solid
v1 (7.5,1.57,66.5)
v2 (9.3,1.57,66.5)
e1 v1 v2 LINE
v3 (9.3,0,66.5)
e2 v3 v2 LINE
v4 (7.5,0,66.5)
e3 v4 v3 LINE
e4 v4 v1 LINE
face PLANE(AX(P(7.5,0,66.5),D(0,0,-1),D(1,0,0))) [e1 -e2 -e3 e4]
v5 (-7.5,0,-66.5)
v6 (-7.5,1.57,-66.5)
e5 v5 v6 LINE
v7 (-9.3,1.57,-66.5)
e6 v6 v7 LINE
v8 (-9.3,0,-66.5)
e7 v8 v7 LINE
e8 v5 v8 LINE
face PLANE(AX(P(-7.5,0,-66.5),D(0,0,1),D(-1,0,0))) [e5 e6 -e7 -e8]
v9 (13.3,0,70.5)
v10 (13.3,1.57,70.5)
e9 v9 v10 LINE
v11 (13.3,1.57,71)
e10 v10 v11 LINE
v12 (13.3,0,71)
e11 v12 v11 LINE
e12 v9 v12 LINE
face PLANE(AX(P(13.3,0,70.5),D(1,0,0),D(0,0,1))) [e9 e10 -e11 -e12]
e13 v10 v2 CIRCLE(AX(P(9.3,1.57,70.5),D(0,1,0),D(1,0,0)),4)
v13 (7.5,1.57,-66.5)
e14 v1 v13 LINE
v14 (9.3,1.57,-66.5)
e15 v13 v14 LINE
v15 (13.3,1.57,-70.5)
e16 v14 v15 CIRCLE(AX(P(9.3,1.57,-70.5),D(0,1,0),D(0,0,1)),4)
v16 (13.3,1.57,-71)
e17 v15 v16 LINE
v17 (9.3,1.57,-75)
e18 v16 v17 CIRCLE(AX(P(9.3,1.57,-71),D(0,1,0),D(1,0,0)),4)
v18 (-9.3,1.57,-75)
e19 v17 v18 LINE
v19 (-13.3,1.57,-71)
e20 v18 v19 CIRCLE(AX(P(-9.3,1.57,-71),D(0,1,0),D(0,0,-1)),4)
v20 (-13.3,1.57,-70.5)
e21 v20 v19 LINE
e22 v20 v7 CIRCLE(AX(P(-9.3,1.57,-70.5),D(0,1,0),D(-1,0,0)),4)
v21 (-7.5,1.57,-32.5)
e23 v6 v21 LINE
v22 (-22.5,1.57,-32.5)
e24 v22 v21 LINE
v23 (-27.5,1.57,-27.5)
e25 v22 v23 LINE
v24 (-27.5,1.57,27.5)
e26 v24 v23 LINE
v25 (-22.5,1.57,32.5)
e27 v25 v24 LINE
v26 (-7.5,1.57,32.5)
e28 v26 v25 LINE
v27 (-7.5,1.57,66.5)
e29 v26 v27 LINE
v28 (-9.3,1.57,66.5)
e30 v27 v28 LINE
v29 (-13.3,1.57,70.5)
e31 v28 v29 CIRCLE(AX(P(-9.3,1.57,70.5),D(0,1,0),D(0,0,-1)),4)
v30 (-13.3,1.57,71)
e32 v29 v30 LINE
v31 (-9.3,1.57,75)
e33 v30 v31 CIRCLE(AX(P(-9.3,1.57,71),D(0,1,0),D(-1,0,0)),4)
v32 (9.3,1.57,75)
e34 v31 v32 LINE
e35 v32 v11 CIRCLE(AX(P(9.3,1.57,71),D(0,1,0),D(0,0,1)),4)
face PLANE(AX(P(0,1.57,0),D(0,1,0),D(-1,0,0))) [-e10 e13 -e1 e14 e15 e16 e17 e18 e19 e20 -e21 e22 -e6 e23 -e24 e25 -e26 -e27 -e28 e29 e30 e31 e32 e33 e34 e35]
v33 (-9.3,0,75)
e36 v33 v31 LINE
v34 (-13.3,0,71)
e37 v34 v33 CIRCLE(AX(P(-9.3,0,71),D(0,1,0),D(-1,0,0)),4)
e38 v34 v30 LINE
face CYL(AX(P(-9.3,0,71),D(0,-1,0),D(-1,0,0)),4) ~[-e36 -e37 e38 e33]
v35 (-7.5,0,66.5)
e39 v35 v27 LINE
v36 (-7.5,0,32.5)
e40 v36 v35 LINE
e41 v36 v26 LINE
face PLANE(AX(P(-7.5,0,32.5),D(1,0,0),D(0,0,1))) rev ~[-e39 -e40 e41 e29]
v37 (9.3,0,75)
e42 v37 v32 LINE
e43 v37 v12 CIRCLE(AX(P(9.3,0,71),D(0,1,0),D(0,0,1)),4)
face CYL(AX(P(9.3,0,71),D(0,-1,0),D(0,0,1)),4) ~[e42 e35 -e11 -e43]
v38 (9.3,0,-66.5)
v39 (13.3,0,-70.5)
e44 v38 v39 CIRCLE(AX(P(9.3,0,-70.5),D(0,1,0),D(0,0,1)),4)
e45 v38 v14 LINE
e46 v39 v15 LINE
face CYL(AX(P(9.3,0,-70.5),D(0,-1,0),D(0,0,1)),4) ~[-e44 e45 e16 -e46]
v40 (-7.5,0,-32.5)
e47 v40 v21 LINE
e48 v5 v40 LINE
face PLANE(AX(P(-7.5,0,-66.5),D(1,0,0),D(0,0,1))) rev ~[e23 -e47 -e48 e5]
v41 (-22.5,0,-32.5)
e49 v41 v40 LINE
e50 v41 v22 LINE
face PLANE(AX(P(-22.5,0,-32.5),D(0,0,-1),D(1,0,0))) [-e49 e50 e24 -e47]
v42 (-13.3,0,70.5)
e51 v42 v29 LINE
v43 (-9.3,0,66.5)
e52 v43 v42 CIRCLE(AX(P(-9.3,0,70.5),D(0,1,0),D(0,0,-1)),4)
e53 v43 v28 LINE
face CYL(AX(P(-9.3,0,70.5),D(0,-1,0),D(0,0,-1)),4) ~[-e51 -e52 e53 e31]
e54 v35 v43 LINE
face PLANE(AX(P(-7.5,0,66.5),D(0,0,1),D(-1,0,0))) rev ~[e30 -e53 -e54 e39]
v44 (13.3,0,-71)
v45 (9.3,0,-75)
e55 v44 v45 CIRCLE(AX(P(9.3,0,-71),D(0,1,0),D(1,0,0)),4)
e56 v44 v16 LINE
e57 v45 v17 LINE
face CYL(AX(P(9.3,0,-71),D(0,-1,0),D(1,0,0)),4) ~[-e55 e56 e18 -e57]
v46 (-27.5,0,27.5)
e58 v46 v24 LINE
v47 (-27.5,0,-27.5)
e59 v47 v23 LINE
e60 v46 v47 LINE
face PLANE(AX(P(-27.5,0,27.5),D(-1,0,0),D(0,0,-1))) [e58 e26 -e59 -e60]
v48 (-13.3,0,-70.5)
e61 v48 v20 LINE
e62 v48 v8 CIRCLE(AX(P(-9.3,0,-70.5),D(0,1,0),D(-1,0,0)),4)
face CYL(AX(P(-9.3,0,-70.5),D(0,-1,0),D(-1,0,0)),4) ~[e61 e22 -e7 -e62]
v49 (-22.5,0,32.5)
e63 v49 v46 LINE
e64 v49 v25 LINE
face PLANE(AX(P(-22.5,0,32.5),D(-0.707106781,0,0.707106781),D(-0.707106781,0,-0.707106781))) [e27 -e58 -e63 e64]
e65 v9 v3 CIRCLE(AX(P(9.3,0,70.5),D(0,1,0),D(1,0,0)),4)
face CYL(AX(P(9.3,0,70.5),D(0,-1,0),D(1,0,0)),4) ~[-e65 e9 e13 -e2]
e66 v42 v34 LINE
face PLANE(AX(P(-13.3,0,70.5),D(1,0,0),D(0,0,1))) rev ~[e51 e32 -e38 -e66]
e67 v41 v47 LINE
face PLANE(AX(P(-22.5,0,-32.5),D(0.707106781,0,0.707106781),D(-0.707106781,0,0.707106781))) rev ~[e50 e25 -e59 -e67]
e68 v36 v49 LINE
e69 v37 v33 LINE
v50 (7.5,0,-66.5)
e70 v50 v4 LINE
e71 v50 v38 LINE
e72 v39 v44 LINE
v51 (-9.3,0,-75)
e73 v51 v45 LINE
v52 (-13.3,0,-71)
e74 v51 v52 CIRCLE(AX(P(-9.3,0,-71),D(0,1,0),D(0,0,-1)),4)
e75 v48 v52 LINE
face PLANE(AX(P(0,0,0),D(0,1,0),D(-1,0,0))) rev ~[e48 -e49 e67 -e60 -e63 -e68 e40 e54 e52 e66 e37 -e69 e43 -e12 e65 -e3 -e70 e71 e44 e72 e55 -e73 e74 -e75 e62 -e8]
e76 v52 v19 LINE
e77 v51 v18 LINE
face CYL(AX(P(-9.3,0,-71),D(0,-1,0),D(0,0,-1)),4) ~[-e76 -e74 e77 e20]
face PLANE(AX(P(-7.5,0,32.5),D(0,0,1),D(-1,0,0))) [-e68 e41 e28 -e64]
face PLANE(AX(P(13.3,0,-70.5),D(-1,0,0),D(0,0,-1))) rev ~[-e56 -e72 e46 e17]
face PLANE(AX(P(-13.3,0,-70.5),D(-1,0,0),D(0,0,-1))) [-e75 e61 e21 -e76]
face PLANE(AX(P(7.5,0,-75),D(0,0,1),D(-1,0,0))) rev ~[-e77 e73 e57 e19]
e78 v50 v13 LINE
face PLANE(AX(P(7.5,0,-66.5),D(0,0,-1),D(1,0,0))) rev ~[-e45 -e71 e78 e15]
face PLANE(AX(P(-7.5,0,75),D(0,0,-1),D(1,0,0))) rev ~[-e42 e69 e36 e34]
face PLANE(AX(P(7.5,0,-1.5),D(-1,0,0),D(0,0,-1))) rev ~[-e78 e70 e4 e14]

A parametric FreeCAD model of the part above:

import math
import FreeCAD as App
import Part
import Sketcher

V = App.Vector
Q = App.Units.Quantity

doc = App.newDocument("Part")
params = doc.addObject("Spreadsheet::Sheet", "Params")
for row, (alias, value) in enumerate([
    ("sketch1_radius", "4 mm"),
    ("sketch1_width", "15 mm"),
    ("sketch1_width2", "1.8 mm"),
    ("sketch1_height", "0.5 mm"),
    ("sketch1_height2", "34 mm"),
    ("pad1_length", "1.57 mm"),
], start=1):
    params.set(f"A{row}", alias)
    params.set(f"B{row}", "=" + value)
    params.setAlias(f"B{row}", alias)

body = doc.addObject("PartDesign::Body", "Body")

sketch1 = doc.addObject("Sketcher::SketchObject", "Sketch")
body.addObject(sketch1)
sketch1.AttachmentSupport = (doc.XZ_Plane, [""])
sketch1.MapMode = "FlatFace"
sketch1.addGeometry([
    Part.LineSegment(V(-7.5, 32.5, 0), V(-7.5, 66.5, 0)),
    Part.LineSegment(V(-7.5, 66.5, 0), V(-9.3, 66.5, 0)),
    Part.ArcOfCircle(Part.Circle(V(-9.3, 70.5, 0), V(0, 0, 1), 4), math.radians(180), math.radians(270)),
    Part.LineSegment(V(-13.3, 70.5, 0), V(-13.3, 71, 0)),
    Part.ArcOfCircle(Part.Circle(V(-9.3, 71, 0), V(0, 0, 1), 4), math.radians(90), math.radians(180)),
    Part.LineSegment(V(-9.3, 75, 0), V(9.3, 75, 0)),
    Part.ArcOfCircle(Part.Circle(V(9.3, 71, 0), V(0, 0, 1), 4), math.radians(0), math.radians(90)),
    Part.LineSegment(V(13.3, 71, 0), V(13.3, 70.5, 0)),
    Part.ArcOfCircle(Part.Circle(V(9.3, 70.5, 0), V(0, 0, 1), 4), math.radians(-90), math.radians(0)),
    Part.LineSegment(V(9.3, 66.5, 0), V(7.5, 66.5, 0)),
    Part.LineSegment(V(7.5, 66.5, 0), V(7.5, -66.5, 0)),
    Part.LineSegment(V(7.5, -66.5, 0), V(9.3, -66.5, 0)),
    Part.ArcOfCircle(Part.Circle(V(9.3, -70.5, 0), V(0, 0, 1), 4), math.radians(0), math.radians(90)),
    Part.LineSegment(V(13.3, -70.5, 0), V(13.3, -71, 0)),
    Part.ArcOfCircle(Part.Circle(V(9.3, -71, 0), V(0, 0, 1), 4), math.radians(-90), math.radians(0)),
    Part.LineSegment(V(9.3, -75, 0), V(-9.3, -75, 0)),
    Part.ArcOfCircle(Part.Circle(V(-9.3, -71, 0), V(0, 0, 1), 4), math.radians(180), math.radians(270)),
    Part.LineSegment(V(-13.3, -71, 0), V(-13.3, -70.5, 0)),
    Part.ArcOfCircle(Part.Circle(V(-9.3, -70.5, 0), V(0, 0, 1), 4), math.radians(90), math.radians(180)),
    Part.LineSegment(V(-9.3, -66.5, 0), V(-7.5, -66.5, 0)),
    Part.LineSegment(V(-7.5, -66.5, 0), V(-7.5, -32.5, 0)),
    Part.LineSegment(V(-7.5, -32.5, 0), V(-22.5, -32.5, 0)),
    Part.LineSegment(V(-22.5, -32.5, 0), V(-27.5, -27.5, 0)),
    Part.LineSegment(V(-27.5, -27.5, 0), V(-27.5, 27.5, 0)),
    Part.LineSegment(V(-27.5, 27.5, 0), V(-22.5, 32.5, 0)),
    Part.LineSegment(V(-22.5, 32.5, 0), V(-7.5, 32.5, 0)),
], False)
sketch1.addConstraint([
    Sketcher.Constraint("Coincident", 0, 2, 1, 1),
    Sketcher.Constraint("Tangent", 1, 2, 2, 2),
    Sketcher.Constraint("Tangent", 2, 1, 3, 1),
    Sketcher.Constraint("Tangent", 3, 2, 4, 2),
    Sketcher.Constraint("Tangent", 4, 1, 5, 1),
    Sketcher.Constraint("Tangent", 5, 2, 6, 2),
    Sketcher.Constraint("Tangent", 6, 1, 7, 1),
    Sketcher.Constraint("Tangent", 7, 2, 8, 2),
    Sketcher.Constraint("Tangent", 8, 1, 9, 1),
    Sketcher.Constraint("Coincident", 9, 2, 10, 1),
    Sketcher.Constraint("Coincident", 10, 2, 11, 1),
    Sketcher.Constraint("Tangent", 11, 2, 12, 2),
    Sketcher.Constraint("Tangent", 12, 1, 13, 1),
    Sketcher.Constraint("Tangent", 13, 2, 14, 2),
    Sketcher.Constraint("Tangent", 14, 1, 15, 1),
    Sketcher.Constraint("Tangent", 15, 2, 16, 2),
    Sketcher.Constraint("Tangent", 16, 1, 17, 1),
    Sketcher.Constraint("Tangent", 17, 2, 18, 2),
    Sketcher.Constraint("Tangent", 18, 1, 19, 1),
    Sketcher.Constraint("Coincident", 19, 2, 20, 1),
    Sketcher.Constraint("Coincident", 20, 2, 21, 1),
    Sketcher.Constraint("Coincident", 21, 2, 22, 1),
    Sketcher.Constraint("Coincident", 22, 2, 23, 1),
    Sketcher.Constraint("Coincident", 23, 2, 24, 1),
    Sketcher.Constraint("Coincident", 24, 2, 25, 1),
    Sketcher.Constraint("Coincident", 25, 2, 0, 1),
    Sketcher.Constraint("Vertical", 0),
    Sketcher.Constraint("Horizontal", 1),
    Sketcher.Constraint("Vertical", 3),
    Sketcher.Constraint("Horizontal", 5),
    Sketcher.Constraint("Vertical", 7),
    Sketcher.Constraint("Horizontal", 9),
    Sketcher.Constraint("Vertical", 10),
    Sketcher.Constraint("Horizontal", 11),
    Sketcher.Constraint("Vertical", 13),
    Sketcher.Constraint("Horizontal", 15),
    Sketcher.Constraint("Vertical", 17),
    Sketcher.Constraint("Horizontal", 19),
    Sketcher.Constraint("Vertical", 20),
    Sketcher.Constraint("Horizontal", 21),
    Sketcher.Constraint("Vertical", 23),
    Sketcher.Constraint("Horizontal", 25),
    Sketcher.Constraint("Equal", 2, 4),
    Sketcher.Constraint("Equal", 4, 6),
    Sketcher.Constraint("Equal", 6, 8),
    Sketcher.Constraint("Equal", 8, 12),
    Sketcher.Constraint("Equal", 12, 14),
    Sketcher.Constraint("Equal", 14, 16),
    Sketcher.Constraint("Equal", 16, 18),
    Sketcher.Constraint("Symmetric", 2, 3, 12, 3, -1, 1),
    Sketcher.Constraint("Symmetric", 6, 3, 16, 3, -1, 1),
    Sketcher.Constraint("Symmetric", 9, 2, 19, 2, -1, 1),
    Sketcher.Constraint("Symmetric", 2, 3, 8, 3, -2),
    Sketcher.Constraint("Symmetric", 21, 2, 24, 2, -1),
    Sketcher.Constraint("Perpendicular", 22, 24),
    Sketcher.Constraint("Vertical", 0, 2, 19, 2),
    Sketcher.Constraint("Equal", 22, 24),
    Sketcher.Constraint("Radius", 2, Q("4 mm")),
    Sketcher.Constraint("DistanceX", 21, 2, 21, 1, Q("15 mm")),
    Sketcher.Constraint("DistanceX", 1, 2, 1, 1, Q("1.8 mm")),
    Sketcher.Constraint("DistanceY", 3, 1, 3, 2, Q("0.5 mm")),
    Sketcher.Constraint("DistanceX", 20, 2, 10, 2, Q("15 mm")),
    Sketcher.Constraint("DistanceX", 22, 2, 21, 2, Q("5 mm")),
    Sketcher.Constraint("DistanceY", 0, 1, 0, 2, Q("34 mm")),
    Sketcher.Constraint("DistanceY", 10, 2, 10, 1, Q("133 mm")),
])
sketch1.setExpression("Constraints[57]", "Params.sketch1_radius")
sketch1.setExpression("Constraints[58]", "Params.sketch1_width")
sketch1.setExpression("Constraints[59]", "Params.sketch1_width2")
sketch1.setExpression("Constraints[60]", "Params.sketch1_height")
sketch1.setExpression("Constraints[63]", "Params.sketch1_height2")
pad1 = doc.addObject("PartDesign::Pad", "Pad")
body.addObject(pad1)
pad1.Profile = sketch1
pad1.setExpression("Length", "Params.pad1_length")
pad1.Reversed = True

doc.recompute()
